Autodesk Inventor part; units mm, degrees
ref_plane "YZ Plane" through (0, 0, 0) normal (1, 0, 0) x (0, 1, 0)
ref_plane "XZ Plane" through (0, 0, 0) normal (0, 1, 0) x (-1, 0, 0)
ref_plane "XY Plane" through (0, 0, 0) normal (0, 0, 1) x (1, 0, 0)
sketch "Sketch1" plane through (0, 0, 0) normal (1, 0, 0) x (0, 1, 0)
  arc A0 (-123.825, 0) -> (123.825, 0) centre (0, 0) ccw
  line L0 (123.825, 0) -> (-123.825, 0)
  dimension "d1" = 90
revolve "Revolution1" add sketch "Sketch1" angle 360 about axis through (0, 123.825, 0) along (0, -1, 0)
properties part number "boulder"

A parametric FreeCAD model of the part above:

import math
import FreeCAD as App
import Part
import Sketcher

V = App.Vector
Q = App.Units.Quantity

doc = App.newDocument("Part")
body = doc.addObject("PartDesign::Body", "Body")

# Sketch on YZ plane
sketch1 = body.newObject("Sketcher::SketchObject", "Sketch")
sketch1.AttachmentSupport = (doc.getObject("YZ_Plane"), [""])
sketch1.MapMode = "FlatFace"
sketch1.addGeometry(Part.LineSegment(V(124, 0, 0), V(-124, 0, 0)), False)
sketch1.addGeometry(Part.ArcOfCircle(Part.Circle(V(0, 0, 0), V(0, 0, 1), 124), math.radians(180), math.radians(360)), False)
sketch1.addConstraint(Sketcher.Constraint("Coincident", 0, 1, 1, 2))
sketch1.addConstraint(Sketcher.Constraint("Coincident", 1, 1, 0, 2))
sketch1.addConstraint(Sketcher.Constraint("Horizontal", 0))
sketch1.addConstraint(Sketcher.Constraint("Coincident", 1, 3, -1, 1))
sketch1.addConstraint(Sketcher.Constraint("PointOnObject", 0, 1, -1))
sketch1.addConstraint(Sketcher.Constraint("Radius", 1, Q("4.875 in")))
revolution = body.newObject("PartDesign::Revolution", "Revolution")
revolution.Profile = sketch1
revolution.ReferenceAxis = (sketch1, ["H_Axis"])
revolution.Angle = 360

doc.recompute()
